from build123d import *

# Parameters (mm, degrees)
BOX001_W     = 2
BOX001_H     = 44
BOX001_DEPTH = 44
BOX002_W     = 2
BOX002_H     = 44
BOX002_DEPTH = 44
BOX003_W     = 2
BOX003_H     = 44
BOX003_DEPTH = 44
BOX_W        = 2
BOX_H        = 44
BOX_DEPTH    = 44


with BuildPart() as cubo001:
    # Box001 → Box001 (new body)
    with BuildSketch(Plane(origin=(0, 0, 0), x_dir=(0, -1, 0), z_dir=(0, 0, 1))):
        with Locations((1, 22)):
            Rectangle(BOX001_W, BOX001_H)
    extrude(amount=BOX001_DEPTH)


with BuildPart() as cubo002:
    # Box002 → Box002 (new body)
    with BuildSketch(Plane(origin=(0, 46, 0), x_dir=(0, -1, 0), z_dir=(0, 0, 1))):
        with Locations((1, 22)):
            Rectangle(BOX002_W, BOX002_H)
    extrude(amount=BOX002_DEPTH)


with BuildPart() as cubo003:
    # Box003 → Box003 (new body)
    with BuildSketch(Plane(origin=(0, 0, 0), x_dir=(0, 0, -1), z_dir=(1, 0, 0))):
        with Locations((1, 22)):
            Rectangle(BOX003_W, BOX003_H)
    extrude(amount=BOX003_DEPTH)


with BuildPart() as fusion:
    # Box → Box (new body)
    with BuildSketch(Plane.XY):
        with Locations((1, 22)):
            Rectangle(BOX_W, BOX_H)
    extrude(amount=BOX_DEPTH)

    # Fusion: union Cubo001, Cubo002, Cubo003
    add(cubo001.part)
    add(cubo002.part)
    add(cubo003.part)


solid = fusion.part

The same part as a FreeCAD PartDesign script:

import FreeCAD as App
import Part
import Sketcher

V = App.Vector
Q = App.Units.Quantity


def add_polygon(sketch, points):
    """Adds a closed chain of lines whose ends are joined by coincident constraints."""
    first, n = sketch.GeometryCount, len(points)
    for a, b in zip(points, points[1:] + points[:1]):
        sketch.addGeometry(Part.LineSegment(App.Vector(*a, 0), App.Vector(*b, 0)), False)
    for i in range(n):
        sketch.addConstraint(Sketcher.Constraint("Coincident", first + i, 2, first + (i + 1) % n, 1))

doc = App.newDocument("Part")
body = doc.addObject("PartDesign::Body", "Body")

sketch1 = body.newObject("Sketcher::SketchObject", "Sketch")
sketch1.AttachmentSupport = (doc.getObject("XY_Plane"), [""])
sketch1.MapMode = "FlatFace"
add_polygon(sketch1, [(44, 0), (0, 0), (0, -2), (44, -2)])
sketch1.addConstraint([
    Sketcher.Constraint("Horizontal", 0),
    Sketcher.Constraint("Vertical", 1),
    Sketcher.Constraint("Horizontal", 2),
    Sketcher.Constraint("Vertical", 3),
    Sketcher.Constraint("Coincident", 0, 2, -1, 1),
    Sketcher.Constraint("DistanceX", 0, 2, 0, 1, Q("44 mm")),
    Sketcher.Constraint("DistanceY", 1, 2, 1, 1, Q("2 mm")),
])
pad1 = body.newObject("PartDesign::Pad", "Pad")
pad1.Profile = sketch1
pad1.Length = 44
body2 = doc.addObject("PartDesign::Body", "Body001")

sketch2 = body2.newObject("Sketcher::SketchObject", "Sketch001")
sketch2.AttachmentSupport = (doc.getObject("XY_Plane001"), [""])
sketch2.MapMode = "FlatFace"
add_polygon(sketch2, [(44, 46), (0, 46), (0, 44), (44, 44)])
sketch2.addConstraint([
    Sketcher.Constraint("Horizontal", 0),
    Sketcher.Constraint("Vertical", 1),
    Sketcher.Constraint("Horizontal", 2),
    Sketcher.Constraint("Vertical", 3),
    Sketcher.Constraint("PointOnObject", 0, 2, -2),
    Sketcher.Constraint("DistanceX", 0, 2, 0, 1, Q("44 mm")),
    Sketcher.Constraint("DistanceY", 1, 2, 1, 1, Q("2 mm")),
    Sketcher.Constraint("DistanceY", -1, 1, 0, 2, Q("46 mm")),
])
pad2 = body2.newObject("PartDesign::Pad", "Pad001")
pad2.Profile = sketch2
pad2.Length = 44
body3 = doc.addObject("PartDesign::Body", "Body002")

sketch3 = body3.newObject("Sketcher::SketchObject", "Sketch002")
sketch3.AttachmentSupport = (doc.getObject("YZ_Plane002"), [""])
sketch3.MapMode = "FlatFace"
add_polygon(sketch3, [(44, 0), (0, 0), (0, -2), (44, -2)])
sketch3.addConstraint([
    Sketcher.Constraint("Horizontal", 0),
    Sketcher.Constraint("Vertical", 1),
    Sketcher.Constraint("Horizontal", 2),
    Sketcher.Constraint("Vertical", 3),
    Sketcher.Constraint("Coincident", 0, 2, -1, 1),
    Sketcher.Constraint("DistanceX", 0, 2, 0, 1, Q("44 mm")),
    Sketcher.Constraint("DistanceY", 1, 2, 1, 1, Q("2 mm")),
])
pad3 = body3.newObject("PartDesign::Pad", "Pad002")
pad3.Profile = sketch3
pad3.Length = 44
body4 = doc.addObject("PartDesign::Body", "Body003")

sketch4 = body4.newObject("Sketcher::SketchObject", "Sketch003")
sketch4.AttachmentSupport = (doc.getObject("XY_Plane003"), [""])
sketch4.MapMode = "FlatFace"
add_polygon(sketch4, [(0, 44), (0, 0), (2, 0), (2, 44)])
sketch4.addConstraint([
    Sketcher.Constraint("Vertical", 0),
    Sketcher.Constraint("Horizontal", 1),
    Sketcher.Constraint("Vertical", 2),
    Sketcher.Constraint("Horizontal", 3),
    Sketcher.Constraint("Coincident", 0, 2, -1, 1),
    Sketcher.Constraint("DistanceX", 1, 1, 1, 2, Q("2 mm")),
    Sketcher.Constraint("DistanceY", 0, 2, 0, 1, Q("44 mm")),
])
pad4 = body4.newObject("PartDesign::Pad", "Pad003")
pad4.Profile = sketch4
pad4.Length = 44
doc.recompute()

boolean = body4.newObject("PartDesign::Boolean", "Boolean")
boolean.Type = "Fuse"
boolean.addObjects([body])
doc.recompute()

boolean2 = body4.newObject("PartDesign::Boolean", "Boolean001")
boolean2.Type = "Fuse"
boolean2.addObjects([body2])
doc.recompute()

boolean3 = body4.newObject("PartDesign::Boolean", "Boolean002")
boolean3.Type = "Fuse"
boolean3.addObjects([body3])

doc.recompute()
